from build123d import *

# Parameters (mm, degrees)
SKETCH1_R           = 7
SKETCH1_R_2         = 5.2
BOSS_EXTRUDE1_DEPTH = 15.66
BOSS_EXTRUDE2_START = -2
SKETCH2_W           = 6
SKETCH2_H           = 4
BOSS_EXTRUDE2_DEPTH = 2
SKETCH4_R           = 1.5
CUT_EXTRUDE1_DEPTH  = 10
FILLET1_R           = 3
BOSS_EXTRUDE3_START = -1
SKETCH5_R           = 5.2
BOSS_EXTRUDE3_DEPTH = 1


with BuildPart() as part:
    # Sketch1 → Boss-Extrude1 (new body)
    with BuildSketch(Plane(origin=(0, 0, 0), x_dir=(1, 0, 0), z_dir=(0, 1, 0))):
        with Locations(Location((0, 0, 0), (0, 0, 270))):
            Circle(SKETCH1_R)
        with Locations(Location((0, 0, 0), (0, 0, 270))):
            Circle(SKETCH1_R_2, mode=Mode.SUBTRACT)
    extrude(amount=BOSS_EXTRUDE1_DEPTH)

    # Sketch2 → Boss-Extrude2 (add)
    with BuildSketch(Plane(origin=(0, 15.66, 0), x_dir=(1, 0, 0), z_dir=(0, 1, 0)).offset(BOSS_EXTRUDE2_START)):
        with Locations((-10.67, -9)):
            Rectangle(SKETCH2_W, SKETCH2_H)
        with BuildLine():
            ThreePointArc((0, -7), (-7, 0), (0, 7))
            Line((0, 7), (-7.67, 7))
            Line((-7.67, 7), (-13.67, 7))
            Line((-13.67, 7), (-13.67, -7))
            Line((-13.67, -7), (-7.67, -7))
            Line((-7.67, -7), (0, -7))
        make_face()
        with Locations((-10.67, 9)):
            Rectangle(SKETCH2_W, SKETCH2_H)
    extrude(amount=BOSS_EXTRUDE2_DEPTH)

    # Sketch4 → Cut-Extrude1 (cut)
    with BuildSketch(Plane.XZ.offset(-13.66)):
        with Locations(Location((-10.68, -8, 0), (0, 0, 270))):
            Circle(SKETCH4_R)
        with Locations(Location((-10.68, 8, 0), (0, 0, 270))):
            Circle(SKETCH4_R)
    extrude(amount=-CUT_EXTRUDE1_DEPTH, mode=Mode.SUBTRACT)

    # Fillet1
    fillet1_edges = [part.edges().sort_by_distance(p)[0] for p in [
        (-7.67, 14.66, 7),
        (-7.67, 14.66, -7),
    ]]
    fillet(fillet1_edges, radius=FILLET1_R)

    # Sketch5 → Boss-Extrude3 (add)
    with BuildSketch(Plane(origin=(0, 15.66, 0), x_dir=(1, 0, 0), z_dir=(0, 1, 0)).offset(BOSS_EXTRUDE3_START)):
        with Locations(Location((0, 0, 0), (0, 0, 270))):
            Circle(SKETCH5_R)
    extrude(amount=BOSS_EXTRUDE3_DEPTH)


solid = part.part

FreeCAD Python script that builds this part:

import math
import FreeCAD as App
import Part
import Sketcher


def edges_at(feature, points):
    """Names of the edges that pass closest to the given points."""
    edges = feature.Shape.Edges
    near = lambda p: min(range(len(edges)), key=lambda i: edges[i].distToShape(Part.Vertex(*p))[0])
    return sorted({f"Edge{near(p) + 1}" for p in points})

doc = App.newDocument("Part")
body = doc.addObject("PartDesign::Body", "Body")

# Sketch on XZ plane
sketch1 = doc.addObject("Sketcher::SketchObject", "Sketch")
body.addObject(sketch1)
sketch1.AttachmentSupport = (doc.XZ_Plane, [""])
sketch1.MapMode = "FlatFace"
sketch1.addGeometry([
    Part.Circle(App.Vector(0, 0, 0), App.Vector(0, 0, 1), 7),
    Part.Circle(App.Vector(0, 0, 0), App.Vector(0, 0, 1), 5),
], False)
sketch1.addConstraint([
    Sketcher.Constraint("Coincident", 0, 3, -1, 1),
    Sketcher.Constraint("Coincident", 1, 3, -1, 1),
    Sketcher.Constraint("Diameter", 0, 14.0),
    Sketcher.Constraint("Diameter", 1, 10.4),
])
pad1 = doc.addObject("PartDesign::Pad", "Pad")
body.addObject(pad1)
pad1.Profile = sketch1
pad1.Length = 15.66
pad1.Reversed = True

# Sketch on XZ plane
sketch2 = doc.addObject("Sketcher::SketchObject", "Sketch001")
body.addObject(sketch2)
sketch2.AttachmentSupport = (doc.XZ_Plane, [""])
sketch2.MapMode = "FlatFace"
sketch2.AttachmentOffset = App.Placement(App.Vector(0, 0, -13.66), App.Rotation())
sketch2.addGeometry([
    Part.LineSegment(App.Vector(-13.7, 11, 0), App.Vector(-7.7, 11, 0)),  # 0
    Part.LineSegment(App.Vector(-7.7, 11, 0), App.Vector(-7.7, 7, 0)),  # 1
    Part.LineSegment(App.Vector(-7.7, 7, 0), App.Vector(0, 7, 0)),  # 2
    Part.ArcOfCircle(Part.Circle(App.Vector(0, 0, 0), App.Vector(0, 0, 1), 7), math.radians(90), math.radians(270)),  # 3
    Part.LineSegment(App.Vector(0, -7, 0), App.Vector(-7.7, -7, 0)),  # 4
    Part.LineSegment(App.Vector(-7.7, -7, 0), App.Vector(-7.7, -11, 0)),  # 5
    Part.LineSegment(App.Vector(-7.7, -11, 0), App.Vector(-13.7, -11, 0)),  # 6
    Part.LineSegment(App.Vector(-13.7, -11, 0), App.Vector(-13.7, 11, 0)),  # 7
], False)
sketch2.addConstraint([
    Sketcher.Constraint("Coincident", 0, 2, 1, 1),
    Sketcher.Constraint("Coincident", 1, 2, 2, 1),
    Sketcher.Constraint("Tangent", 2, 2, 3, 1),
    Sketcher.Constraint("Tangent", 3, 2, 4, 1),
    Sketcher.Constraint("Coincident", 4, 2, 5, 1),
    Sketcher.Constraint("Coincident", 5, 2, 6, 1),
    Sketcher.Constraint("Coincident", 6, 2, 7, 1),
    Sketcher.Constraint("Coincident", 7, 2, 0, 1),
    Sketcher.Constraint("Horizontal", 0),
    Sketcher.Constraint("Vertical", 1),
    Sketcher.Constraint("Horizontal", 2),
    Sketcher.Constraint("Horizontal", 4),
    Sketcher.Constraint("Vertical", 5),
    Sketcher.Constraint("Horizontal", 6),
    Sketcher.Constraint("Vertical", 7),
    Sketcher.Constraint("Coincident", 3, 3, -1, 1),
    Sketcher.Constraint("Symmetric", 0, 2, 5, 2, -1),
    Sketcher.Constraint("Radius", 3, 7.0),
    Sketcher.Constraint("DistanceX", 0, 1, 0, 2, 6.0),
    Sketcher.Constraint("DistanceY", 1, 2, 1, 1, 4.0),
    Sketcher.Constraint("DistanceX", 2, 1, 2, 2, 7.67),
])
pad2 = doc.addObject("PartDesign::Pad", "Pad001")
body.addObject(pad2)
pad2.Profile = sketch2
pad2.Length = 2
pad2.Reversed = True

# Sketch on XZ plane
sketch3 = doc.addObject("Sketcher::SketchObject", "Sketch002")
body.addObject(sketch3)
sketch3.AttachmentSupport = (doc.XZ_Plane, [""])
sketch3.MapMode = "FlatFace"
sketch3.AttachmentOffset = App.Placement(App.Vector(0, 0, -13.66), App.Rotation())
sketch3.addGeometry([
    Part.Circle(App.Vector(-10.7, -8, 0), App.Vector(0, 0, 1), 1.5),
    Part.Circle(App.Vector(-10.7, 8, 0), App.Vector(0, 0, 1), 1.5),
], False)
sketch3.addConstraint([
    Sketcher.Constraint("Equal", 0, 1),
    Sketcher.Constraint("Symmetric", 0, 3, 1, 3, -1),
    Sketcher.Constraint("Diameter", 0, 3.0),
    Sketcher.Constraint("DistanceY", 0, 3, -1, 1, 8.0),
    Sketcher.Constraint("DistanceX", 0, 3, -1, 1, 10.68),
])
pocket1 = doc.addObject("PartDesign::Pocket", "Pocket")
body.addObject(pocket1)
pocket1.Profile = sketch3
pocket1.Length = 10
doc.recompute()

fillet = doc.addObject("PartDesign::Fillet", "Fillet")
body.addObject(fillet)
fillet.Base = (pocket1, edges_at(pocket1, [(-7.67, 14.66, 7), (-7.67, 14.66, -7)]))
fillet.Radius = 3

# Sketch on XZ plane
sketch4 = doc.addObject("Sketcher::SketchObject", "Sketch003")
body.addObject(sketch4)
sketch4.AttachmentSupport = (doc.XZ_Plane, [""])
sketch4.MapMode = "FlatFace"
sketch4.AttachmentOffset = App.Placement(App.Vector(0, 0, -14.66), App.Rotation())
sketch4.addGeometry(Part.Circle(App.Vector(0, 0, 0), App.Vector(0, 0, 1), 5), False)
sketch4.addConstraint([
    Sketcher.Constraint("Coincident", 0, 3, -1, 1),
    Sketcher.Constraint("Diameter", 0, 10.4),
])
pad3 = doc.addObject("PartDesign::Pad", "Pad002")
body.addObject(pad3)
pad3.Profile = sketch4
pad3.Length = 1
pad3.Reversed = True

doc.recompute()
